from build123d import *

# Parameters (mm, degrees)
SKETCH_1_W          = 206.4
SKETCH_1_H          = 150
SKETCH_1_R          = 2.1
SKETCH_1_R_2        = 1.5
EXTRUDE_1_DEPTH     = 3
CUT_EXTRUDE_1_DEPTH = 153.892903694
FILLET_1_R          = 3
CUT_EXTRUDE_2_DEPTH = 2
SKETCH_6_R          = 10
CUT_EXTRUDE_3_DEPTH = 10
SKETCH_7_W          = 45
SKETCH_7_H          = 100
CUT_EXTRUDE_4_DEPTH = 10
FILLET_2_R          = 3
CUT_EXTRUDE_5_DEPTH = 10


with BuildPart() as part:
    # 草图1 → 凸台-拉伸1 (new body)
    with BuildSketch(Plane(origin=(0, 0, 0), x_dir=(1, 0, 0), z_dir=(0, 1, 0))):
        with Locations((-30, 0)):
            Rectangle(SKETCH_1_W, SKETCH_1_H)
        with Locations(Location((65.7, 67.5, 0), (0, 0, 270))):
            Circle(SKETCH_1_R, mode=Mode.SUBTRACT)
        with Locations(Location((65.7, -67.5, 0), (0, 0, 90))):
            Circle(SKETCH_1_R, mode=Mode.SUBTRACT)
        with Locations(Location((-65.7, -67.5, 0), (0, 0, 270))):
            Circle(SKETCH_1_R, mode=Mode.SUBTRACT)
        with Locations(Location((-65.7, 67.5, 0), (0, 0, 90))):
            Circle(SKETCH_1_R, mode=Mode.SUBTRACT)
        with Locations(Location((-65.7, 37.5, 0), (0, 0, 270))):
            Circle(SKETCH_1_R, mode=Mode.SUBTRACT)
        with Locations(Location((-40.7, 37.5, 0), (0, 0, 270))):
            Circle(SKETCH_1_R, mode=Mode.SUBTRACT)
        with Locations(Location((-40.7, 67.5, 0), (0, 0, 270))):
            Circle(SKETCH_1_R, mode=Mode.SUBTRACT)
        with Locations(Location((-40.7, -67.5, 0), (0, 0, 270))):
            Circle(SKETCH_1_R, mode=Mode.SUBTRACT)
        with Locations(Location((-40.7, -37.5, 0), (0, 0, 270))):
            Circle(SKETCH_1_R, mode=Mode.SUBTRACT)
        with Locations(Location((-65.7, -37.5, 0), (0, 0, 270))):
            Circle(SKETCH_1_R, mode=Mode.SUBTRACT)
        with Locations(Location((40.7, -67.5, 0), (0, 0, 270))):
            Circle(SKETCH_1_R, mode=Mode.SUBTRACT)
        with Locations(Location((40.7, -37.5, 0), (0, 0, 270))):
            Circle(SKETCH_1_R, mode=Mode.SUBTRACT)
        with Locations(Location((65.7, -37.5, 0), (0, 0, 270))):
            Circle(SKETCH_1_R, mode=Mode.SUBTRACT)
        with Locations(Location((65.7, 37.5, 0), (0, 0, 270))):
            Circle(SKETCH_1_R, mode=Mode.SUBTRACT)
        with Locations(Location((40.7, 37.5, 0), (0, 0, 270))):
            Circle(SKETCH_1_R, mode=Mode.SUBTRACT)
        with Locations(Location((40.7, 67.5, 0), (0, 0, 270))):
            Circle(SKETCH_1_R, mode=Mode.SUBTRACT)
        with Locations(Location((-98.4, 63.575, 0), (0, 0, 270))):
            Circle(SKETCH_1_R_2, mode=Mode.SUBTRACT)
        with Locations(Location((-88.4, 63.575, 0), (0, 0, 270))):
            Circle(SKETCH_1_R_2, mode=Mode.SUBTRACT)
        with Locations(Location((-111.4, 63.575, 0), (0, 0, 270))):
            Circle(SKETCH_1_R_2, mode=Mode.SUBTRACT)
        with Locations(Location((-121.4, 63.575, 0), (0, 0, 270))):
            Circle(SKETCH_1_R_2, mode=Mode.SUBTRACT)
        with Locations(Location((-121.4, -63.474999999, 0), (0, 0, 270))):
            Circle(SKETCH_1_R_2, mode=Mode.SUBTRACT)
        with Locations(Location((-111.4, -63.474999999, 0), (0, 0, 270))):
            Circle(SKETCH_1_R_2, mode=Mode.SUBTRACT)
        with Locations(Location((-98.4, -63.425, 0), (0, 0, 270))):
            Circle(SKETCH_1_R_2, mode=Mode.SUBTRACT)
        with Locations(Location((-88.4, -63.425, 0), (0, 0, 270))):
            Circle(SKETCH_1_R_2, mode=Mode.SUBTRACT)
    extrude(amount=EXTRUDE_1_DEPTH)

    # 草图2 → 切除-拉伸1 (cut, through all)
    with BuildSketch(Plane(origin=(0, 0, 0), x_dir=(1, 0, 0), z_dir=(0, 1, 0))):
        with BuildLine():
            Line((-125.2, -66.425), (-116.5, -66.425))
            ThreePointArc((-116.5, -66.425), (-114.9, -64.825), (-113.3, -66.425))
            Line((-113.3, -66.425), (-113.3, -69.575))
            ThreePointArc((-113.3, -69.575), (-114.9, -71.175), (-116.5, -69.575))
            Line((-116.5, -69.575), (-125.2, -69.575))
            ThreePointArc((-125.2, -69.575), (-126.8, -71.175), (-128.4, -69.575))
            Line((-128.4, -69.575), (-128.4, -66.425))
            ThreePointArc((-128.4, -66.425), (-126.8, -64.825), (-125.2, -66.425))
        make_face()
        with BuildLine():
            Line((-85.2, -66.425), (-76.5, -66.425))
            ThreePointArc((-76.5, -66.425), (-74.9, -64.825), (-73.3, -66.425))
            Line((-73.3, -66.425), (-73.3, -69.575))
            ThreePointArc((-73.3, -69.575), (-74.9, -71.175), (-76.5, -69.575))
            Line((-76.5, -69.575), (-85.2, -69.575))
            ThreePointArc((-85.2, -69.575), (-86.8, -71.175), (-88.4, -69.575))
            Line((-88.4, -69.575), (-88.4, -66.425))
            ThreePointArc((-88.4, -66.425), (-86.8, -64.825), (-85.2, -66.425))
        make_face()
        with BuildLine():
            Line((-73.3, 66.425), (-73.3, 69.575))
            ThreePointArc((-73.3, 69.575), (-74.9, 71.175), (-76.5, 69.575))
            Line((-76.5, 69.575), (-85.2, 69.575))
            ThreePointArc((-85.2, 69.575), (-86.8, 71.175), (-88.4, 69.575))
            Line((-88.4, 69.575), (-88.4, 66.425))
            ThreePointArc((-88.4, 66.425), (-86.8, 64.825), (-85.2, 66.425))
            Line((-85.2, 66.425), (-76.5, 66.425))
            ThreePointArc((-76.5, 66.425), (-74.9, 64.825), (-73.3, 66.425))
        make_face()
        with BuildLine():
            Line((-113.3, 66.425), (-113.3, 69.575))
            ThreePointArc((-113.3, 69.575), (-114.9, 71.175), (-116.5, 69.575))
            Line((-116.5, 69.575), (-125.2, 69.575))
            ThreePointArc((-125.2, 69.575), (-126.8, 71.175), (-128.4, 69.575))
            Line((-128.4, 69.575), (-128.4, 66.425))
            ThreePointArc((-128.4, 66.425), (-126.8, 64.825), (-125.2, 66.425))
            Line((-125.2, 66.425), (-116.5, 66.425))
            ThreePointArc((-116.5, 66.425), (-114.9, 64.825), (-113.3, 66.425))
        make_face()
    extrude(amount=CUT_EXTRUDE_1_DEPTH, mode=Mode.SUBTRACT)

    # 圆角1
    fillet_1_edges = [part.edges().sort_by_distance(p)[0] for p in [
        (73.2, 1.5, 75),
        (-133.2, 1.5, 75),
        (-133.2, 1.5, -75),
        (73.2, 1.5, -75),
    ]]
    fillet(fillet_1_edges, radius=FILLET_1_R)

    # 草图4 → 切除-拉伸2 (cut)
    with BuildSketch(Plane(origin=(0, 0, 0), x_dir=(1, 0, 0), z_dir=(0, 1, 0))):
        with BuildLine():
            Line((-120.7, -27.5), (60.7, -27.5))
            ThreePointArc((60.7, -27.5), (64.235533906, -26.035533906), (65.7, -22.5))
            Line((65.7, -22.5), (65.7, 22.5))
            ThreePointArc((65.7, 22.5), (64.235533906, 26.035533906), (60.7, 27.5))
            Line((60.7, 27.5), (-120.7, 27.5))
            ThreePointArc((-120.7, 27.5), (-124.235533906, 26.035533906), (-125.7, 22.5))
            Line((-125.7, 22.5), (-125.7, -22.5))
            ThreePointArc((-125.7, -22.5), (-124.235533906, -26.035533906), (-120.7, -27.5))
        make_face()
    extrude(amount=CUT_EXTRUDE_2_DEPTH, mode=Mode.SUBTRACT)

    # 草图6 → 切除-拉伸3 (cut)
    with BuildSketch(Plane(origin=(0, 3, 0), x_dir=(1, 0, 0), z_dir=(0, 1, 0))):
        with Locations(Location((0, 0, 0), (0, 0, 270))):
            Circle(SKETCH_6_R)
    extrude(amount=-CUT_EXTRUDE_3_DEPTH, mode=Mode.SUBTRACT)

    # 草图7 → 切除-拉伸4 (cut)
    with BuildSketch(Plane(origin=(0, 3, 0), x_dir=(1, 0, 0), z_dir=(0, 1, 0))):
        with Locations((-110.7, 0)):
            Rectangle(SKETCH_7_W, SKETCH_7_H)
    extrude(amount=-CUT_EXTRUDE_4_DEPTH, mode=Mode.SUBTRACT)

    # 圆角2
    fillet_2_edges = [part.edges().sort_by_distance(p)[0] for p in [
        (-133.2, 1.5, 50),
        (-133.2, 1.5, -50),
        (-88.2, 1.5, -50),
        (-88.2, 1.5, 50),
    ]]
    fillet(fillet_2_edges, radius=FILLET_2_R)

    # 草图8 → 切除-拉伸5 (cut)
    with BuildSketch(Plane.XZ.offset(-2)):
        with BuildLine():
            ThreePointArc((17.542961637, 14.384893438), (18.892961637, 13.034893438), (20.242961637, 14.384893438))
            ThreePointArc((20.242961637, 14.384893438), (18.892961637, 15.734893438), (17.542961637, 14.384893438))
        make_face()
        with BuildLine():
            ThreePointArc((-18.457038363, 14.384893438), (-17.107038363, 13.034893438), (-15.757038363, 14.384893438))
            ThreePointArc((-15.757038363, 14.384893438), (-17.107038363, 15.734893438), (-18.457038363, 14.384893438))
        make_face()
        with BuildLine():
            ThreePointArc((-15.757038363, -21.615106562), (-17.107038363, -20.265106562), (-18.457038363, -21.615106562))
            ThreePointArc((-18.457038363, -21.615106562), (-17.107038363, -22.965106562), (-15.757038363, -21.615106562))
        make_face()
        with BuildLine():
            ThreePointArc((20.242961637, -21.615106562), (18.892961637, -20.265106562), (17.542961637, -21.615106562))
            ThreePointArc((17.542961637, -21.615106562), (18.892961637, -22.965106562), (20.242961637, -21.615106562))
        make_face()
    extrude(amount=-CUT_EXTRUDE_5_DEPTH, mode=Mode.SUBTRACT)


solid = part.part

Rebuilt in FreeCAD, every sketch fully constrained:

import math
import FreeCAD as App
import Part
import Sketcher

V = App.Vector


def edges_at(feature, points):
    """Names of the edges that pass closest to the given points."""
    edges = feature.Shape.Edges
    near = lambda p: min(range(len(edges)), key=lambda i: edges[i].distToShape(Part.Vertex(*p))[0])
    return sorted({f"Edge{near(p) + 1}" for p in points})


def add_polygon(sketch, points):
    """Adds a closed chain of lines whose ends are joined by coincident constraints."""
    first, n = sketch.GeometryCount, len(points)
    for a, b in zip(points, points[1:] + points[:1]):
        sketch.addGeometry(Part.LineSegment(App.Vector(*a, 0), App.Vector(*b, 0)), False)
    for i in range(n):
        sketch.addConstraint(Sketcher.Constraint("Coincident", first + i, 2, first + (i + 1) % n, 1))

doc = App.newDocument("Part")
params = doc.addObject("Spreadsheet::Sheet", "Params")
for row, (alias, value) in enumerate([
    ("sketch1_diameter", "3 mm"),
    ("sketch1_diameter2", "4.2 mm"),
    ("sketch1_height", "150 mm"),
    ("sketch1_width", "206.4 mm"),
    ("pad1_length", "3 mm"),
    ("sketch2_radius", "1.6 mm"),
    ("sketch2_width", "8.7 mm"),
    ("sketch2_height", "3.15 mm"),
    ("fillet_radius", "3 mm"),
    ("sketch3_radius", "5 mm"),
    ("sketch3_height", "45 mm"),
    ("sketch3_width", "181.4 mm"),
    ("pocket2_length", "2 mm"),
    ("sketch4_diameter", "20 mm"),
    ("pocket3_length", "10 mm"),
    ("sketch5_width", "45 mm"),
    ("sketch5_height", "100 mm"),
    ("pocket4_length", "10 mm"),
    ("fillet2_radius", "3 mm"),
    ("sketch6_diameter", "2.7 mm"),
    ("pocket5_length", "10 mm"),
], start=1):
    params.set(f"A{row}", alias)
    params.set(f"B{row}", "=" + value)
    params.setAlias(f"B{row}", alias)

body = doc.addObject("PartDesign::Body", "Body")

sketch1 = body.newObject("Sketcher::SketchObject", "Sketch")
sketch1.AttachmentSupport = (doc.getObject("XZ_Plane"), [""])
sketch1.MapMode = "FlatFace"
add_polygon(sketch1, [(-133.2, -75), (-133.2, 75), (73.2, 75), (73.2, -75)])
sketch1.addGeometry(Part.Circle(V(-121.4, 63.5, 0), V(0, 0, 1), 1.5), False)
sketch1.addGeometry(Part.Circle(V(-111.4, 63.5, 0), V(0, 0, 1), 1.5), False)
sketch1.addGeometry(Part.Circle(V(-98.4, 63.4, 0), V(0, 0, 1), 1.5), False)
sketch1.addGeometry(Part.Circle(V(-88.4, 63.4, 0), V(0, 0, 1), 1.5), False)
sketch1.addGeometry(Part.Circle(V(-65.7, 67.5, 0), V(0, 0, 1), 2.1), False)
sketch1.addGeometry(Part.Circle(V(-40.7, 67.5, 0), V(0, 0, 1), 2.1), False)
sketch1.addGeometry(Part.Circle(V(-65.7, 37.5, 0), V(0, 0, 1), 2.1), False)
sketch1.addGeometry(Part.Circle(V(-40.7, 37.5, 0), V(0, 0, 1), 2.1), False)
sketch1.addGeometry(Part.Circle(V(40.7, 67.5, 0), V(0, 0, 1), 2.1), False)
sketch1.addGeometry(Part.Circle(V(65.7, 67.5, 0), V(0, 0, 1), 2.1), False)
sketch1.addGeometry(Part.Circle(V(40.7, 37.5, 0), V(0, 0, 1), 2.1), False)
sketch1.addGeometry(Part.Circle(V(65.7, 37.5, 0), V(0, 0, 1), 2.1), False)
sketch1.addGeometry(Part.Circle(V(-121.4, -63.6, 0), V(0, 0, 1), 1.5), False)
sketch1.addGeometry(Part.Circle(V(-111.4, -63.6, 0), V(0, 0, 1), 1.5), False)
sketch1.addGeometry(Part.Circle(V(-98.4, -63.6, 0), V(0, 0, 1), 1.5), False)
sketch1.addGeometry(Part.Circle(V(-88.4, -63.6, 0), V(0, 0, 1), 1.5), False)
sketch1.addGeometry(Part.Circle(V(-65.7, -37.5, 0), V(0, 0, 1), 2.1), False)
sketch1.addGeometry(Part.Circle(V(-40.7, -37.5, 0), V(0, 0, 1), 2.1), False)
sketch1.addGeometry(Part.Circle(V(-65.7, -67.5, 0), V(0, 0, 1), 2.1), False)
sketch1.addGeometry(Part.Circle(V(-40.7, -67.5, 0), V(0, 0, 1), 2.1), False)
sketch1.addGeometry(Part.Circle(V(40.7, -37.5, 0), V(0, 0, 1), 2.1), False)
sketch1.addGeometry(Part.Circle(V(65.7, -37.5, 0), V(0, 0, 1), 2.1), False)
sketch1.addGeometry(Part.Circle(V(40.7, -67.5, 0), V(0, 0, 1), 2.1), False)
sketch1.addGeometry(Part.Circle(V(65.7, -67.5, 0), V(0, 0, 1), 2.1), False)
sketch1.addConstraint([
    Sketcher.Constraint("Vertical", 0),
    Sketcher.Constraint("Horizontal", 1),
    Sketcher.Constraint("Vertical", 2),
    Sketcher.Constraint("Horizontal", 3),
    Sketcher.Constraint("Equal", 4, 5),
    Sketcher.Constraint("Equal", 5, 6),
    Sketcher.Constraint("Equal", 6, 7),
    Sketcher.Constraint("Equal", 8, 9),
    Sketcher.Constraint("Equal", 9, 10),
    Sketcher.Constraint("Equal", 10, 11),
    Sketcher.Constraint("Equal", 11, 12),
    Sketcher.Constraint("Equal", 12, 13),
    Sketcher.Constraint("Equal", 13, 14),
    Sketcher.Constraint("Equal", 14, 15),
    Sketcher.Constraint("Equal", 7, 16),
    Sketcher.Constraint("Equal", 16, 17),
    Sketcher.Constraint("Equal", 17, 18),
    Sketcher.Constraint("Equal", 18, 19),
    Sketcher.Constraint("Equal", 15, 20),
    Sketcher.Constraint("Equal", 20, 21),
    Sketcher.Constraint("Equal", 21, 22),
    Sketcher.Constraint("Equal", 22, 23),
    Sketcher.Constraint("Equal", 23, 24),
    Sketcher.Constraint("Equal", 24, 25),
    Sketcher.Constraint("Equal", 25, 26),
    Sketcher.Constraint("Equal", 26, 27),
    Sketcher.Constraint("Symmetric", 15, 3, 20, 3, -1, 1),
    Sketcher.Constraint("Symmetric", 14, 3, 21, 3, -1, 1),
    Sketcher.Constraint("Symmetric", 13, 3, 22, 3, -1, 1),
    Sketcher.Constraint("Symmetric", 12, 3, 23, 3, -1, 1),
    Sketcher.Constraint("Symmetric", 11, 3, 24, 3, -1, 1),
    Sketcher.Constraint("Symmetric", 10, 3, 25, 3, -1, 1),
    Sketcher.Constraint("Symmetric", 9, 3, 26, 3, -1, 1),
    Sketcher.Constraint("Symmetric", 8, 3, 27, 3, -1, 1),
    Sketcher.Constraint("Symmetric", 9, 3, 12, 3, -2),
    Sketcher.Constraint("Symmetric", 8, 3, 13, 3, -2),
    Sketcher.Constraint("Symmetric", 11, 3, 14, 3, -2),
    Sketcher.Constraint("Symmetric", 10, 3, 15, 3, -2),
    Sketcher.Constraint("Horizontal", 4, 3, 5, 3),
    Sketcher.Constraint("Horizontal", 6, 3, 7, 3),
    Sketcher.Constraint("Horizontal", 8, 3, 9, 3),
    Sketcher.Constraint("Horizontal", 10, 3, 11, 3),
    Sketcher.Constraint("Horizontal", 16, 3, 17, 3),
    Sketcher.Constraint("Horizontal", 17, 3, 18, 3),
    Sketcher.Constraint("Horizontal", 18, 3, 19, 3),
    Sketcher.Constraint("Vertical", 8, 3, 10, 3),
    Sketcher.Constraint("Vertical", 9, 3, 11, 3),
    Sketcher.Constraint("Vertical", 4, 3, 16, 3),
    Sketcher.Constraint("Vertical", 5, 3, 17, 3),
    Sketcher.Constraint("Vertical", 6, 3, 18, 3),
    Sketcher.Constraint("Vertical", 7, 3, 19, 3),
    Sketcher.Constraint("Diameter", 4, 3.0),
    Sketcher.Constraint("Diameter", 8, 4.2),
    Sketcher.Constraint("DistanceY", 0, 1, 0, 2, 150.0),
    Sketcher.Constraint("DistanceX", 1, 1, 1, 2, 206.4),
    Sketcher.Constraint("DistanceY", -1, 1, 0, 2, 75.0),
    Sketcher.Constraint("DistanceX", 4, 3, 5, 3, 10.0),
    Sketcher.Constraint("DistanceX", 5, 3, 6, 3, 13.0),
    Sketcher.Constraint("DistanceX", 6, 3, 7, 3, 10.0),
    Sketcher.Constraint("DistanceX", 8, 3, 9, 3, 25.0),
    Sketcher.Constraint("DistanceY", 10, 3, 8, 3, 30.0),
    Sketcher.Constraint("DistanceY", 16, 3, 6, 3, 127.0),
    Sketcher.Constraint("DistanceY", 20, 3, 10, 3, 75.0),
    Sketcher.Constraint("DistanceX", 4, 3, -1, 1, 121.4),
    Sketcher.Constraint("DistanceX", 8, 3, -1, 1, 65.7),
    Sketcher.Constraint("DistanceX", 0, 2, -1, 1, 133.2),
    Sketcher.Constraint("DistanceY", 6, 3, 5, 3, 0.05),
    Sketcher.Constraint("DistanceY", -1, 1, 4, 3, 63.475),
])
sketch1.setExpression("Constraints[55]", "Params.sketch1_diameter")
sketch1.setExpression("Constraints[56]", "Params.sketch1_diameter2")
sketch1.setExpression("Constraints[57]", "Params.sketch1_height")
sketch1.setExpression("Constraints[58]", "Params.sketch1_width")
pad1 = body.newObject("PartDesign::Pad", "Pad")
pad1.Profile = sketch1
pad1.setExpression("Length", "Params.pad1_length")
pad1.Reversed = True

sketch2 = body.newObject("Sketcher::SketchObject", "Sketch001")
sketch2.AttachmentSupport = (doc.getObject("XZ_Plane"), [""])
sketch2.MapMode = "FlatFace"
sketch2.addGeometry([
    Part.LineSegment(V(-116.5, 66.4, 0), V(-125.2, 66.4, 0)),
    Part.ArcOfCircle(Part.Circle(V(-126.8, 66.4, 0), V(0, 0, 1), 1.6), math.radians(180), math.radians(360)),
    Part.LineSegment(V(-128.4, 66.4, 0), V(-128.4, 69.6, 0)),
    Part.ArcOfCircle(Part.Circle(V(-126.8, 69.6, 0), V(0, 0, 1), 1.6), math.radians(0), math.radians(180)),
    Part.LineSegment(V(-125.2, 69.6, 0), V(-116.5, 69.6, 0)),
    Part.ArcOfCircle(Part.Circle(V(-114.9, 69.6, 0), V(0, 0, 1), 1.6), math.radians(0), math.radians(180)),
    Part.LineSegment(V(-113.3, 69.6, 0), V(-113.3, 66.4, 0)),
    Part.ArcOfCircle(Part.Circle(V(-114.9, 66.4, 0), V(0, 0, 1), 1.6), math.radians(180), math.radians(360)),
    Part.LineSegment(V(-76.5, 66.4, 0), V(-85.2, 66.4, 0)),
    Part.ArcOfCircle(Part.Circle(V(-86.8, 66.4, 0), V(0, 0, 1), 1.6), math.radians(180), math.radians(360)),
    Part.LineSegment(V(-88.4, 66.4, 0), V(-88.4, 69.6, 0)),
    Part.ArcOfCircle(Part.Circle(V(-86.8, 69.6, 0), V(0, 0, 1), 1.6), math.radians(0), math.radians(180)),
    Part.LineSegment(V(-85.2, 69.6, 0), V(-76.5, 69.6, 0)),
    Part.ArcOfCircle(Part.Circle(V(-74.9, 69.6, 0), V(0, 0, 1), 1.6), math.radians(0), math.radians(180)),
    Part.LineSegment(V(-73.3, 69.6, 0), V(-73.3, 66.4, 0)),
    Part.ArcOfCircle(Part.Circle(V(-74.9, 66.4, 0), V(0, 0, 1), 1.6), math.radians(180), math.radians(360)),
    Part.LineSegment(V(-73.3, -66.4, 0), V(-73.3, -69.6, 0)),
    Part.ArcOfCircle(Part.Circle(V(-74.9, -69.6, 0), V(0, 0, 1), 1.6), math.radians(180), math.radians(360)),
    Part.LineSegment(V(-76.5, -69.6, 0), V(-85.2, -69.6, 0)),
    Part.ArcOfCircle(Part.Circle(V(-86.8, -69.6, 0), V(0, 0, 1), 1.6), math.radians(180), math.radians(360)),
    Part.LineSegment(V(-88.4, -69.6, 0), V(-88.4, -66.4, 0)),
    Part.ArcOfCircle(Part.Circle(V(-86.8, -66.4, 0), V(0, 0, 1), 1.6), math.radians(0), math.radians(180)),
    Part.LineSegment(V(-85.2, -66.4, 0), V(-76.5, -66.4, 0)),
    Part.ArcOfCircle(Part.Circle(V(-74.9, -66.4, 0), V(0, 0, 1), 1.6), math.radians(0), math.radians(180)),
    Part.LineSegment(V(-113.3, -66.4, 0), V(-113.3, -69.6, 0)),
    Part.ArcOfCircle(Part.Circle(V(-114.9, -69.6, 0), V(0, 0, 1), 1.6), math.radians(180), math.radians(360)),
    Part.LineSegment(V(-116.5, -69.6, 0), V(-125.2, -69.6, 0)),
    Part.ArcOfCircle(Part.Circle(V(-126.8, -69.6, 0), V(0, 0, 1), 1.6), math.radians(180), math.radians(360)),
    Part.LineSegment(V(-128.4, -69.6, 0), V(-128.4, -66.4, 0)),
    Part.ArcOfCircle(Part.Circle(V(-126.8, -66.4, 0), V(0, 0, 1), 1.6), math.radians(0), math.radians(180)),
    Part.LineSegment(V(-125.2, -66.4, 0), V(-116.5, -66.4, 0)),
    Part.ArcOfCircle(Part.Circle(V(-114.9, -66.4, 0), V(0, 0, 1), 1.6), math.radians(0), math.radians(180)),
], False)
sketch2.addConstraint([
    Sketcher.Constraint("Coincident", 0, 2, 1, 2),
    Sketcher.Constraint("Tangent", 1, 1, 2, 1),
    Sketcher.Constraint("Tangent", 2, 2, 3, 2),
    Sketcher.Constraint("Coincident", 3, 1, 4, 1),
    Sketcher.Constraint("Coincident", 4, 2, 5, 2),
    Sketcher.Constraint("Tangent", 5, 1, 6, 1),
    Sketcher.Constraint("Tangent", 6, 2, 7, 2),
    Sketcher.Constraint("Coincident", 7, 1, 0, 1),
    Sketcher.Constraint("Coincident", 8, 2, 9, 2),
    Sketcher.Constraint("Tangent", 9, 1, 10, 1),
    Sketcher.Constraint("Tangent", 10, 2, 11, 2),
    Sketcher.Constraint("Coincident", 11, 1, 12, 1),
    Sketcher.Constraint("Coincident", 12, 2, 13, 2),
    Sketcher.Constraint("Tangent", 13, 1, 14, 1),
    Sketcher.Constraint("Tangent", 14, 2, 15, 2),
    Sketcher.Constraint("Coincident", 15, 1, 8, 1),
    Sketcher.Constraint("Tangent", 16, 2, 17, 2),
    Sketcher.Constraint("Coincident", 17, 1, 18, 1),
    Sketcher.Constraint("Coincident", 18, 2, 19, 2),
    Sketcher.Constraint("Tangent", 19, 1, 20, 1),
    Sketcher.Constraint("Tangent", 20, 2, 21, 2),
    Sketcher.Constraint("Coincident", 21, 1, 22, 1),
    Sketcher.Constraint("Coincident", 22, 2, 23, 2),
    Sketcher.Constraint("Tangent", 23, 1, 16, 1),
    Sketcher.Constraint("Tangent", 24, 2, 25, 2),
    Sketcher.Constraint("Coincident", 25, 1, 26, 1),
    Sketcher.Constraint("Coincident", 26, 2, 27, 2),
    Sketcher.Constraint("Tangent", 27, 1, 28, 1),
    Sketcher.Constraint("Tangent", 28, 2, 29, 2),
    Sketcher.Constraint("Coincident", 29, 1, 30, 1),
    Sketcher.Constraint("Coincident", 30, 2, 31, 2),
    Sketcher.Constraint("Tangent", 31, 1, 24, 1),
    Sketcher.Constraint("Horizontal", 0),
    Sketcher.Constraint("Vertical", 2),
    Sketcher.Constraint("Horizontal", 4),
    Sketcher.Constraint("Vertical", 6),
    Sketcher.Constraint("Horizontal", 8),
    Sketcher.Constraint("Vertical", 10),
    Sketcher.Constraint("Horizontal", 12),
    Sketcher.Constraint("Vertical", 14),
    Sketcher.Constraint("Vertical", 16),
    Sketcher.Constraint("Horizontal", 18),
    Sketcher.Constraint("Vertical", 20),
    Sketcher.Constraint("Horizontal", 22),
    Sketcher.Constraint("Vertical", 24),
    Sketcher.Constraint("Horizontal", 26),
    Sketcher.Constraint("Vertical", 28),
    Sketcher.Constraint("Horizontal", 30),
    Sketcher.Constraint("Equal", 1, 3),
    Sketcher.Constraint("Equal", 3, 5),
    Sketcher.Constraint("Equal", 5, 7),
    Sketcher.Constraint("Equal", 7, 9),
    Sketcher.Constraint("Equal", 9, 11),
    Sketcher.Constraint("Equal", 11, 13),
    Sketcher.Constraint("Equal", 13, 15),
    Sketcher.Constraint("Equal", 15, 17),
    Sketcher.Constraint("Equal", 17, 19),
    Sketcher.Constraint("Equal", 19, 21),
    Sketcher.Constraint("Equal", 21, 23),
    Sketcher.Constraint("Equal", 23, 25),
    Sketcher.Constraint("Equal", 25, 27),
    Sketcher.Constraint("Equal", 27, 29),
    Sketcher.Constraint("Equal", 29, 31),
    Sketcher.Constraint("Symmetric", 13, 3, 17, 3, -1),
    Sketcher.Constraint("Symmetric", 11, 3, 19, 3, -1),
    Sketcher.Constraint("Symmetric", 5, 3, 25, 3, -1),
    Sketcher.Constraint("Symmetric", 3, 3, 27, 3, -1),
    Sketcher.Constraint("Horizontal", 3, 3, 5, 3),
    Sketcher.Constraint("Horizontal", 1, 3, 7, 3),
    Sketcher.Constraint("Horizontal", 7, 3, 9, 3),
    Sketcher.Constraint("Horizontal", 5, 3, 11, 3),
    Sketcher.Constraint("Horizontal", 11, 3, 13, 3),
    Sketcher.Constraint("Horizontal", 9, 3, 15, 3),
    Sketcher.Constraint("Horizontal", 21, 3, 23, 3),
    Sketcher.Constraint("Horizontal", 23, 3, 29, 3),
    Sketcher.Constraint("Horizontal", 29, 3, 31, 3),
    Sketcher.Constraint("Horizontal", 15, 3, 0, 2),
    Sketcher.Constraint("Horizontal", 2, 2, 3, 1),
    Sketcher.Constraint("Horizontal", 7, 1, 8, 2),
    Sketcher.Constraint("Horizontal", 10, 2, 11, 1),
    Sketcher.Constraint("Horizontal", 16, 2, 17, 1),
    Sketcher.Constraint("Horizontal", 20, 2, 21, 1),
    Sketcher.Constraint("Horizontal", 24, 2, 25, 1),
    Sketcher.Constraint("Horizontal", 28, 2, 29, 1),
    Sketcher.Constraint("Equal", 4, 8),
    Sketcher.Constraint("Equal", 14, 16),
    Sketcher.Constraint("Radius", 1, 1.6),
    Sketcher.Constraint("DistanceX", 0, 2, 0, 1, 8.7),
    Sketcher.Constraint("DistanceX", 1, 3, 9, 3, 40.0),
    Sketcher.Constraint("DistanceY", 17, 3, 15, 3, 136.0),
    Sketcher.Constraint("DistanceY", 2, 1, 2, 2, 3.15),
    Sketcher.Constraint("DistanceX", 1, 3, -1, 1, 126.8),
])
sketch2.setExpression("Constraints[86]", "Params.sketch2_radius")
sketch2.setExpression("Constraints[87]", "Params.sketch2_width")
sketch2.setExpression("Constraints[90]", "Params.sketch2_height")
pocket1 = body.newObject("PartDesign::Pocket", "Pocket")
pocket1.Profile = sketch2
pocket1.Type = "ThroughAll"
doc.recompute()

fillet = body.newObject("PartDesign::Fillet", "Fillet")
fillet.Base = (pocket1, edges_at(pocket1, [
    (73.2, 1.5, 75),
    (-133.2, 1.5, 75),
    (-133.2, 1.5, -75),
    (73.2, 1.5, -75),
]))
fillet.setExpression("Radius", "Params.fillet_radius")

sketch3 = body.newObject("Sketcher::SketchObject", "Sketch002")
sketch3.AttachmentSupport = (doc.getObject("XZ_Plane"), [""])
sketch3.MapMode = "FlatFace"
sketch3.addGeometry([
    Part.LineSegment(V(-121, 28, 0), V(61, 28, 0)),
    Part.ArcOfCircle(Part.Circle(V(61, 22, 0), V(0, 0, 1), 5), math.radians(0), math.radians(90)),
    Part.LineSegment(V(66, 22, 0), V(66, -22, 0)),
    Part.ArcOfCircle(Part.Circle(V(61, -22, 0), V(0, 0, 1), 5), math.radians(-90), math.radians(0)),
    Part.LineSegment(V(61, -28, 0), V(-121, -28, 0)),
    Part.ArcOfCircle(Part.Circle(V(-121, -22, 0), V(0, 0, 1), 5), math.radians(180), math.radians(270)),
    Part.LineSegment(V(-126, -22, 0), V(-126, 22, 0)),
    Part.ArcOfCircle(Part.Circle(V(-121, 22, 0), V(0, 0, 1), 5), math.radians(90), math.radians(180)),
], False)
sketch3.addConstraint([
    Sketcher.Constraint("Tangent", 0, 2, 1, 2),
    Sketcher.Constraint("Tangent", 1, 1, 2, 1),
    Sketcher.Constraint("Tangent", 2, 2, 3, 2),
    Sketcher.Constraint("Tangent", 3, 1, 4, 1),
    Sketcher.Constraint("Tangent", 4, 2, 5, 2),
    Sketcher.Constraint("Tangent", 5, 1, 6, 1),
    Sketcher.Constraint("Tangent", 6, 2, 7, 2),
    Sketcher.Constraint("Tangent", 7, 1, 0, 1),
    Sketcher.Constraint("Horizontal", 0),
    Sketcher.Constraint("Vertical", 2),
    Sketcher.Constraint("Horizontal", 4),
    Sketcher.Constraint("Vertical", 6),
    Sketcher.Constraint("Equal", 1, 3),
    Sketcher.Constraint("Equal", 3, 5),
    Sketcher.Constraint("Equal", 5, 7),
    Sketcher.Constraint("Radius", 1, 5.0),
    Sketcher.Constraint("DistanceY", 2, 2, 2, 1, 45.0),
    Sketcher.Constraint("DistanceX", 0, 1, 0, 2, 181.4),
    Sketcher.Constraint("DistanceX", -1, 1, 1, 3, 60.7),
    Sketcher.Constraint("DistanceY", -1, 1, 1, 3, 22.5),
])
sketch3.setExpression("Constraints[15]", "Params.sketch3_radius")
sketch3.setExpression("Constraints[16]", "Params.sketch3_height")
sketch3.setExpression("Constraints[17]", "Params.sketch3_width")
pocket2 = body.newObject("PartDesign::Pocket", "Pocket001")
pocket2.Profile = sketch3
pocket2.setExpression("Length", "Params.pocket2_length")

sketch4 = body.newObject("Sketcher::SketchObject", "Sketch003")
sketch4.AttachmentSupport = (doc.getObject("XZ_Plane"), [""])
sketch4.MapMode = "FlatFace"
sketch4.AttachmentOffset = App.Placement(V(0, 0, -3), App.Rotation())
sketch4.addGeometry(Part.Circle(V(0, 0, 0), V(0, 0, 1), 10), False)
sketch4.addConstraint([
    Sketcher.Constraint("Coincident", 0, 3, -1, 1),
    Sketcher.Constraint("Diameter", 0, 20.0),
])
sketch4.setExpression("Constraints[1]", "Params.sketch4_diameter")
pocket3 = body.newObject("PartDesign::Pocket", "Pocket002")
pocket3.Profile = sketch4
pocket3.setExpression("Length", "Params.pocket3_length")
pocket3.Reversed = True

sketch5 = body.newObject("Sketcher::SketchObject", "Sketch004")
sketch5.AttachmentSupport = (doc.getObject("XZ_Plane"), [""])
sketch5.MapMode = "FlatFace"
sketch5.AttachmentOffset = App.Placement(V(0, 0, -3), App.Rotation())
add_polygon(sketch5, [(-133, -50), (-133, 50), (-88, 50), (-88, -50)])
sketch5.addConstraint([
    Sketcher.Constraint("Vertical", 0),
    Sketcher.Constraint("Horizontal", 1),
    Sketcher.Constraint("Vertical", 2),
    Sketcher.Constraint("Horizontal", 3),
    Sketcher.Constraint("DistanceX", 1, 1, 1, 2, 45.0),
    Sketcher.Constraint("DistanceY", 0, 1, 0, 2, 100.0),
    Sketcher.Constraint("DistanceY", -1, 1, 0, 2, 50.0),
    Sketcher.Constraint("DistanceX", 0, 2, -1, 1, 133.2),
])
sketch5.setExpression("Constraints[8]", "Params.sketch5_width")
sketch5.setExpression("Constraints[9]", "Params.sketch5_height")
pocket4 = body.newObject("PartDesign::Pocket", "Pocket003")
pocket4.Profile = sketch5
pocket4.setExpression("Length", "Params.pocket4_length")
pocket4.Reversed = True
doc.recompute()

fillet2 = body.newObject("PartDesign::Fillet", "Fillet001")
fillet2.Base = (pocket4, edges_at(pocket4, [
    (-133.2, 1.5, 50),
    (-133.2, 1.5, -50),
    (-88.2, 1.5, -50),
    (-88.2, 1.5, 50),
]))
fillet2.setExpression("Radius", "Params.fillet2_radius")

sketch6 = body.newObject("Sketcher::SketchObject", "Sketch005")
sketch6.AttachmentSupport = (doc.getObject("XZ_Plane"), [""])
sketch6.MapMode = "FlatFace"
sketch6.AttachmentOffset = App.Placement(V(0, 0, -2), App.Rotation())
sketch6.addGeometry([
    Part.Circle(V(18.9, 14.4, 0), V(0, 0, 1), 1.4),
    Part.Circle(V(-17.1, 14.4, 0), V(0, 0, 1), 1.4),
    Part.Circle(V(-17.1, -21.6, 0), V(0, 0, 1), 1.4),
    Part.Circle(V(18.9, -21.6, 0), V(0, 0, 1), 1.4),
], False)
sketch6.addConstraint([
    Sketcher.Constraint("Equal", 0, 1),
    Sketcher.Constraint("Equal", 1, 2),
    Sketcher.Constraint("Equal", 2, 3),
    Sketcher.Constraint("Horizontal", 0, 3, 1, 3),
    Sketcher.Constraint("Horizontal", 2, 3, 3, 3),
    Sketcher.Constraint("Vertical", 1, 3, 2, 3),
    Sketcher.Constraint("Vertical", 0, 3, 3, 3),
    Sketcher.Constraint("Diameter", 0, 2.7),
    Sketcher.Constraint("DistanceX", 1, 3, 0, 3, 36.0),
    Sketcher.Constraint("DistanceY", 2, 3, 1, 3, 36.0),
    Sketcher.Constraint("DistanceX", -1, 1, 0, 3, 18.892962),
    Sketcher.Constraint("DistanceY", -1, 1, 0, 3, 14.384893),
])
sketch6.setExpression("Constraints[7]", "Params.sketch6_diameter")
pocket5 = body.newObject("PartDesign::Pocket", "Pocket004")
pocket5.Profile = sketch6
pocket5.setExpression("Length", "Params.pocket5_length")

doc.recompute()
